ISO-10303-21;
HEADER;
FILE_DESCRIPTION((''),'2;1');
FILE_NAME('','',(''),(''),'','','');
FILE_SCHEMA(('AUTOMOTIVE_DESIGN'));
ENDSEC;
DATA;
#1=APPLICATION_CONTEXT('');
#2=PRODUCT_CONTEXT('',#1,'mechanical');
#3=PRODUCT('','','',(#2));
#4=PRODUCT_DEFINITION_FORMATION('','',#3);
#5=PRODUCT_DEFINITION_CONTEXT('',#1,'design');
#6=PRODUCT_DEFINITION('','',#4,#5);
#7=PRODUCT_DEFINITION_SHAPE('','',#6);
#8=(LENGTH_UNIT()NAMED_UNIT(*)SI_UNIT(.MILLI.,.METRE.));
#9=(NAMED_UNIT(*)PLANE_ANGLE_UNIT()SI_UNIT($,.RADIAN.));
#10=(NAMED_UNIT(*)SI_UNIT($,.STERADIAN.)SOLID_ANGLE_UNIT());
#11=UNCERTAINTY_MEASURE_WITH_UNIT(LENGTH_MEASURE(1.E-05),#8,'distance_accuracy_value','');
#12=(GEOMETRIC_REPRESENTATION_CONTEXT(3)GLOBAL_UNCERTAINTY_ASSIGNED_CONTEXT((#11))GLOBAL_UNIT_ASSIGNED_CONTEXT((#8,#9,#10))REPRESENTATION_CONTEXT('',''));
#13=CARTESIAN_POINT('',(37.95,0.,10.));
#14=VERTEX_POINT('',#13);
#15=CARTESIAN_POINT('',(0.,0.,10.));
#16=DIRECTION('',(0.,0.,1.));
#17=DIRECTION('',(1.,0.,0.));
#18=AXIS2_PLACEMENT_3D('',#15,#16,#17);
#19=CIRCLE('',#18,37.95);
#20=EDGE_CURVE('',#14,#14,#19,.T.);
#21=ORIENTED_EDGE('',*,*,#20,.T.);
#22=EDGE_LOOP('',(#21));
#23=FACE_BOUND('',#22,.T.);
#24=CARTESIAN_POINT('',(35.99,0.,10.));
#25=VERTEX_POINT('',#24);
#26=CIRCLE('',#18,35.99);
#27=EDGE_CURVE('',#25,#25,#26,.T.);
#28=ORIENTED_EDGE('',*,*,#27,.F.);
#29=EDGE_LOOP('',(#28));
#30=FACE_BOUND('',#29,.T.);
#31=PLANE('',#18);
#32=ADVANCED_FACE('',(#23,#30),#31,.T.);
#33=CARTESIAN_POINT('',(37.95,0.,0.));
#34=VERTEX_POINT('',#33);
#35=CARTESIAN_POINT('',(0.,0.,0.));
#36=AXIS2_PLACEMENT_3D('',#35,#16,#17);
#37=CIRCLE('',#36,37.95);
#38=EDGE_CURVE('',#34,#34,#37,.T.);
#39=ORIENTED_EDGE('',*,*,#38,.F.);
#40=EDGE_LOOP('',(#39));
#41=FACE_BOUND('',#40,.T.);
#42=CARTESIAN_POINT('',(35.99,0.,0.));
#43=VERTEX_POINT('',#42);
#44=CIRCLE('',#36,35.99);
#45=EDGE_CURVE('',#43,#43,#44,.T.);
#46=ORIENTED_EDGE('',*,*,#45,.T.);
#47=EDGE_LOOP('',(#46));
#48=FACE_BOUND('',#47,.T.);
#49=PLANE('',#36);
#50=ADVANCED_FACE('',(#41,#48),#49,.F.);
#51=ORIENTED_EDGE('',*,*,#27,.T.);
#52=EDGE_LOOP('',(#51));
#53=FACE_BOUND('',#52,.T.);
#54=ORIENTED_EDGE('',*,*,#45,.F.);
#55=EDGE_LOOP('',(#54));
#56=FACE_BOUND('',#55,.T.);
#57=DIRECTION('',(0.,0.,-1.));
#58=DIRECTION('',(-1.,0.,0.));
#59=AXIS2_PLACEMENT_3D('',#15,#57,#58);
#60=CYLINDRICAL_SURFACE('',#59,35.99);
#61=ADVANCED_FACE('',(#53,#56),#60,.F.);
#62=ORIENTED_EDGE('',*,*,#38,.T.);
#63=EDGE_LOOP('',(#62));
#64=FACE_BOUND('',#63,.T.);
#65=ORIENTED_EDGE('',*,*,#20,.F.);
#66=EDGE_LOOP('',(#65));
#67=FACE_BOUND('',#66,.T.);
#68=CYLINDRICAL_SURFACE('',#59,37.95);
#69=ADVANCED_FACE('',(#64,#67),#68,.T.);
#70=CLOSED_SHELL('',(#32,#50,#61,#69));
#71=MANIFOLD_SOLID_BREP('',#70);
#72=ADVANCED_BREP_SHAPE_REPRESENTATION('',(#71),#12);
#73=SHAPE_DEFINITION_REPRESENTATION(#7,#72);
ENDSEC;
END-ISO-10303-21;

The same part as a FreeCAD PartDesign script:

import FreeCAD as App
import Part
import Sketcher

doc = App.newDocument("Part")
body = doc.addObject("PartDesign::Body", "Body")

sketch1 = body.newObject("Sketcher::SketchObject", "Sketch")
sketch1.AttachmentSupport = (doc.getObject("XY_Plane"), [""])
sketch1.MapMode = "FlatFace"
sketch1.addGeometry([
    Part.Circle(App.Vector(0, 0, 0), App.Vector(0, 0, 1), 38),
    Part.Circle(App.Vector(0, 0, 0), App.Vector(0, 0, 1), 36),
], False)
sketch1.addConstraint([
    Sketcher.Constraint("Coincident", 0, 3, -1, 1),
    Sketcher.Constraint("Coincident", 1, 3, -1, 1),
    Sketcher.Constraint("Diameter", 0, 75.9),
    Sketcher.Constraint("Diameter", 1, 71.98),
])
pad1 = body.newObject("PartDesign::Pad", "Pad")
pad1.Profile = sketch1
pad1.Length = 10

doc.recompute()
